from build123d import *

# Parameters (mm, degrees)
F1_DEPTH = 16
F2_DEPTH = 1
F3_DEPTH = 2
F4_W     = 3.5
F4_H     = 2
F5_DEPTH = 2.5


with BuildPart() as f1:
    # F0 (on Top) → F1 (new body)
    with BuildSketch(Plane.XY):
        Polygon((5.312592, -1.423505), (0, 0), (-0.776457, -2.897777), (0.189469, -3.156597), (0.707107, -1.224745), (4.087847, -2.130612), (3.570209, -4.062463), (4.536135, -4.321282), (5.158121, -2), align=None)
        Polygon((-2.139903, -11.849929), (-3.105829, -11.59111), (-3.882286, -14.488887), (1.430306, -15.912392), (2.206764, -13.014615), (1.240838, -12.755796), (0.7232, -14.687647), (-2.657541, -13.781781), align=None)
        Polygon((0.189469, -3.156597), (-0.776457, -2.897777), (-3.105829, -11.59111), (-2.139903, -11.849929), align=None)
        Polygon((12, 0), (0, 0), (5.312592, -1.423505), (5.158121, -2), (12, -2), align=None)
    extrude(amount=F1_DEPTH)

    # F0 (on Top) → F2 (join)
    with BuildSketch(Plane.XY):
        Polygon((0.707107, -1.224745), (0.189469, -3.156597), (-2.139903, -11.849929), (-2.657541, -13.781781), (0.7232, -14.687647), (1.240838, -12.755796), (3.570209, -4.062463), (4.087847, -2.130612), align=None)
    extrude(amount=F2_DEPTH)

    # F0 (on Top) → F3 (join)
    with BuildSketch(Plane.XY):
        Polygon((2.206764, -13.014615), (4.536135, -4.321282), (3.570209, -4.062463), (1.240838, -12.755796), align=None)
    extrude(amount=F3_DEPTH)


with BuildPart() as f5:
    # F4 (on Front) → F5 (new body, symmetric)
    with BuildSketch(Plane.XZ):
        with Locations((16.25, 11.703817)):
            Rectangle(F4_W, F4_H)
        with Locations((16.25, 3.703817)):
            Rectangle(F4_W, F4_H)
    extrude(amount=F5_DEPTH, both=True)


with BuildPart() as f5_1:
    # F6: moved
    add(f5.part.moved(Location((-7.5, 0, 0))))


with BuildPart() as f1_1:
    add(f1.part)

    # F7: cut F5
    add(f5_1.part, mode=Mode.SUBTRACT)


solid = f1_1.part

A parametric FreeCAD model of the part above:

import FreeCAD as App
import Part
import Sketcher
Q = App.Units.Quantity

doc = App.newDocument("Part")
body = doc.addObject("PartDesign::Body", "Body")

# Sketch on XY plane
sketch1 = body.newObject("Sketcher::SketchObject", "Sketch")
sketch1.AttachmentSupport = (doc.getObject("XY_Plane"), [""])
sketch1.MapMode = "FlatFace"
sketch1.addGeometry([
    Part.LineSegment(App.Vector(0, 0, 0), App.Vector(-0.8, -2.9, 0)),  # 0
    Part.LineSegment(App.Vector(-0.8, -2.9, 0), App.Vector(-3.1, -11.6, 0)),  # 1
    Part.LineSegment(App.Vector(-3.1, -11.6, 0), App.Vector(-3.9, -14.5, 0)),  # 2
    Part.LineSegment(App.Vector(-3.9, -14.5, 0), App.Vector(1.4, -15.9, 0)),  # 3
    Part.LineSegment(App.Vector(1.4, -15.9, 0), App.Vector(2.2, -13, 0)),  # 4
    Part.LineSegment(App.Vector(2.2, -13, 0), App.Vector(1.2, -12.8, 0)),  # 5
    Part.LineSegment(App.Vector(1.2, -12.8, 0), App.Vector(0.7, -14.7, 0)),  # 6
    Part.LineSegment(App.Vector(0.7, -14.7, 0), App.Vector(-2.7, -13.8, 0)),  # 7
    Part.LineSegment(App.Vector(-2.7, -13.8, 0), App.Vector(-2.1, -11.8, 0)),  # 8
    Part.LineSegment(App.Vector(-2.1, -11.8, 0), App.Vector(0.2, -3.2, 0)),  # 9
    Part.LineSegment(App.Vector(0.2, -3.2, 0), App.Vector(0.7, -1.2, 0)),  # 10
    Part.LineSegment(App.Vector(0.7, -1.2, 0), App.Vector(4.1, -2.1, 0)),  # 11
    Part.LineSegment(App.Vector(4.1, -2.1, 0), App.Vector(3.6, -4.1, 0)),  # 12
    Part.LineSegment(App.Vector(3.6, -4.1, 0), App.Vector(4.5, -4.3, 0)),  # 13
    Part.LineSegment(App.Vector(4.5, -4.3, 0), App.Vector(5.2, -2, 0)),  # 14
    Part.LineSegment(App.Vector(5.2, -2, 0), App.Vector(12, -2, 0)),  # 15
    Part.LineSegment(App.Vector(12, -2, 0), App.Vector(12, 0, 0)),  # 16
    Part.LineSegment(App.Vector(12, 0, 0), App.Vector(0, 0, 0)),  # 17
], False)
sketch1.addConstraint([
    Sketcher.Constraint("Coincident", 0, 2, 1, 1),
    Sketcher.Constraint("Coincident", 1, 2, 2, 1),
    Sketcher.Constraint("Coincident", 2, 2, 3, 1),
    Sketcher.Constraint("Coincident", 3, 2, 4, 1),
    Sketcher.Constraint("Coincident", 4, 2, 5, 1),
    Sketcher.Constraint("Coincident", 5, 2, 6, 1),
    Sketcher.Constraint("Coincident", 6, 2, 7, 1),
    Sketcher.Constraint("Coincident", 7, 2, 8, 1),
    Sketcher.Constraint("Coincident", 8, 2, 9, 1),
    Sketcher.Constraint("Coincident", 9, 2, 10, 1),
    Sketcher.Constraint("Coincident", 10, 2, 11, 1),
    Sketcher.Constraint("Coincident", 11, 2, 12, 1),
    Sketcher.Constraint("Coincident", 12, 2, 13, 1),
    Sketcher.Constraint("Coincident", 13, 2, 14, 1),
    Sketcher.Constraint("Coincident", 14, 2, 15, 1),
    Sketcher.Constraint("Coincident", 15, 2, 16, 1),
    Sketcher.Constraint("Coincident", 16, 2, 17, 1),
    Sketcher.Constraint("Coincident", 17, 2, 0, 1),
    Sketcher.Constraint("Horizontal", 15),
    Sketcher.Constraint("Vertical", 16),
    Sketcher.Constraint("Horizontal", 17),
    Sketcher.Constraint("Coincident", 17, 2, -1, 1),
    Sketcher.Constraint("Parallel", 0, 1),
    Sketcher.Constraint("Parallel", 1, 2),
    Sketcher.Constraint("Perpendicular", 2, 3),
    Sketcher.Constraint("Perpendicular", 3, 4),
    Sketcher.Constraint("Perpendicular", 4, 5),
    Sketcher.Constraint("Perpendicular", 5, 6),
    Sketcher.Constraint("Perpendicular", 6, 7),
    Sketcher.Constraint("Perpendicular", 7, 8),
    Sketcher.Constraint("Parallel", 8, 9),
    Sketcher.Constraint("Parallel", 9, 10),
    Sketcher.Constraint("Perpendicular", 10, 11),
    Sketcher.Constraint("Perpendicular", 11, 12),
    Sketcher.Constraint("Perpendicular", 12, 13),
    Sketcher.Constraint("Perpendicular", 13, 14),
    Sketcher.Constraint("Equal", 0, 2),
    Sketcher.Constraint("Equal", 2, 4),
    Sketcher.Constraint("Equal", 6, 8),
    Sketcher.Constraint("Equal", 1, 9),
    Sketcher.Constraint("Equal", 8, 10),
    Sketcher.Constraint("Equal", 7, 11),
    Sketcher.Constraint("Equal", 10, 12),
    Sketcher.Constraint("Equal", 5, 13),
    Sketcher.Constraint("DistanceX", 17, 2, 17, 1, Q("12 mm")),
    Sketcher.Constraint("DistanceY", 16, 1, 16, 2, Q("2 mm")),
    Sketcher.Constraint("Angle", 0, Q("-105 deg")),
    Sketcher.Constraint("Distance", 0, Q("3 mm")),
    Sketcher.Constraint("Distance", 1, Q("9.000001 mm")),
    Sketcher.Constraint("Distance", 5, Q("1 mm")),
    Sketcher.Constraint("Distance", 6, Q("1.999999 mm")),
    Sketcher.Constraint("Distance", 3, Q("5.5 mm")),
    Sketcher.Constraint("Distance", 7, Q("3.5 mm")),
])
pad1 = body.newObject("PartDesign::Pad", "Pad")
pad1.Profile = sketch1
pad1.Length = 16

# Sketch on XY plane
sketch2 = body.newObject("Sketcher::SketchObject", "Sketch001")
sketch2.AttachmentSupport = (doc.getObject("XY_Plane"), [""])
sketch2.MapMode = "FlatFace"
sketch2.addGeometry([
    Part.LineSegment(App.Vector(0.7, -1.2, 0), App.Vector(0.2, -3.2, 0)),  # 0
    Part.LineSegment(App.Vector(0.2, -3.2, 0), App.Vector(-2.1, -11.8, 0)),  # 1
    Part.LineSegment(App.Vector(-2.1, -11.8, 0), App.Vector(-2.7, -13.8, 0)),  # 2
    Part.LineSegment(App.Vector(-2.7, -13.8, 0), App.Vector(0.7, -14.7, 0)),  # 3
    Part.LineSegment(App.Vector(0.7, -14.7, 0), App.Vector(1.2, -12.8, 0)),  # 4
    Part.LineSegment(App.Vector(1.2, -12.8, 0), App.Vector(3.6, -4.1, 0)),  # 5
    Part.LineSegment(App.Vector(3.6, -4.1, 0), App.Vector(4.1, -2.1, 0)),  # 6
    Part.LineSegment(App.Vector(4.1, -2.1, 0), App.Vector(0.7, -1.2, 0)),  # 7
], False)
sketch2.addConstraint([
    Sketcher.Constraint("Coincident", 0, 2, 1, 1),
    Sketcher.Constraint("Coincident", 1, 2, 2, 1),
    Sketcher.Constraint("Coincident", 2, 2, 3, 1),
    Sketcher.Constraint("Coincident", 3, 2, 4, 1),
    Sketcher.Constraint("Coincident", 4, 2, 5, 1),
    Sketcher.Constraint("Coincident", 5, 2, 6, 1),
    Sketcher.Constraint("Coincident", 6, 2, 7, 1),
    Sketcher.Constraint("Coincident", 7, 2, 0, 1),
    Sketcher.Constraint("Parallel", 0, 1),
    Sketcher.Constraint("Parallel", 1, 2),
    Sketcher.Constraint("Perpendicular", 2, 3),
    Sketcher.Constraint("Perpendicular", 3, 4),
    Sketcher.Constraint("Parallel", 4, 5),
    Sketcher.Constraint("Parallel", 5, 6),
    Sketcher.Constraint("Perpendicular", 6, 7),
    Sketcher.Constraint("Equal", 0, 2),
    Sketcher.Constraint("Equal", 2, 4),
    Sketcher.Constraint("Equal", 1, 5),
    Sketcher.Constraint("Angle", 0, Q("-104.999995 deg")),
    Sketcher.Constraint("Distance", 0, Q("2 mm")),
    Sketcher.Constraint("Distance", 1, Q("9 mm")),
    Sketcher.Constraint("Distance", 3, Q("3.5 mm")),
    Sketcher.Constraint("DistanceX", -1, 1, 3, 2, Q("0.7232 mm")),
    Sketcher.Constraint("DistanceY", 1, 2, -1, 1, Q("11.849929 mm")),
])
pad2 = body.newObject("PartDesign::Pad", "Pad001")
pad2.Profile = sketch2
pad2.Length = 1

# Sketch on XY plane
sketch3 = body.newObject("Sketcher::SketchObject", "Sketch002")
sketch3.AttachmentSupport = (doc.getObject("XY_Plane"), [""])
sketch3.MapMode = "FlatFace"
sketch3.addGeometry([
    Part.LineSegment(App.Vector(2.2, -13, 0), App.Vector(4.5, -4.3, 0)),
    Part.LineSegment(App.Vector(4.5, -4.3, 0), App.Vector(3.6, -4.1, 0)),
    Part.LineSegment(App.Vector(3.6, -4.1, 0), App.Vector(1.2, -12.8, 0)),
    Part.LineSegment(App.Vector(1.2, -12.8, 0), App.Vector(2.2, -13, 0)),
], False)
sketch3.addConstraint([
    Sketcher.Constraint("Coincident", 0, 2, 1, 1),
    Sketcher.Constraint("Coincident", 1, 2, 2, 1),
    Sketcher.Constraint("Coincident", 2, 2, 3, 1),
    Sketcher.Constraint("Coincident", 3, 2, 0, 1),
    Sketcher.Constraint("Perpendicular", 0, 1),
    Sketcher.Constraint("Perpendicular", 1, 2),
    Sketcher.Constraint("Perpendicular", 2, 3),
    Sketcher.Constraint("Angle", 0, Q("75.000003 deg")),
    Sketcher.Constraint("Distance", 0, Q("9 mm")),
    Sketcher.Constraint("Distance", 1, Q("1 mm")),
    Sketcher.Constraint("DistanceX", -1, 1, 1, 2, Q("3.570209 mm")),
    Sketcher.Constraint("DistanceY", 0, 2, -1, 1, Q("4.321282 mm")),
])
pad3 = body.newObject("PartDesign::Pad", "Pad002")
pad3.Profile = sketch3
pad3.Length = 2
body2 = doc.addObject("PartDesign::Body", "Body001")
body2.AllowCompound = True

# Sketch on XZ plane
sketch4 = body2.newObject("Sketcher::SketchObject", "Sketch003")
sketch4.AttachmentSupport = (doc.getObject("XZ_Plane001"), [""])
sketch4.MapMode = "FlatFace"
sketch4.addGeometry([
    Part.LineSegment(App.Vector(14.5, 12.7, 0), App.Vector(14.5, 10.7, 0)),  # 0
    Part.LineSegment(App.Vector(14.5, 10.7, 0), App.Vector(18, 10.7, 0)),  # 1
    Part.LineSegment(App.Vector(18, 10.7, 0), App.Vector(18, 12.7, 0)),  # 2
    Part.LineSegment(App.Vector(18, 12.7, 0), App.Vector(14.5, 12.7, 0)),  # 3
    Part.LineSegment(App.Vector(14.5, 4.7, 0), App.Vector(14.5, 2.7, 0)),  # 4
    Part.LineSegment(App.Vector(14.5, 2.7, 0), App.Vector(18, 2.7, 0)),  # 5
    Part.LineSegment(App.Vector(18, 2.7, 0), App.Vector(18, 4.7, 0)),  # 6
    Part.LineSegment(App.Vector(18, 4.7, 0), App.Vector(14.5, 4.7, 0)),  # 7
], False)
sketch4.addConstraint([
    Sketcher.Constraint("Coincident", 0, 2, 1, 1),
    Sketcher.Constraint("Coincident", 1, 2, 2, 1),
    Sketcher.Constraint("Coincident", 2, 2, 3, 1),
    Sketcher.Constraint("Coincident", 3, 2, 0, 1),
    Sketcher.Constraint("Coincident", 4, 2, 5, 1),
    Sketcher.Constraint("Coincident", 5, 2, 6, 1),
    Sketcher.Constraint("Coincident", 6, 2, 7, 1),
    Sketcher.Constraint("Coincident", 7, 2, 4, 1),
    Sketcher.Constraint("Vertical", 0),
    Sketcher.Constraint("Horizontal", 1),
    Sketcher.Constraint("Vertical", 2),
    Sketcher.Constraint("Horizontal", 3),
    Sketcher.Constraint("Vertical", 4),
    Sketcher.Constraint("Horizontal", 5),
    Sketcher.Constraint("Vertical", 6),
    Sketcher.Constraint("Horizontal", 7),
    Sketcher.Constraint("Vertical", 3, 2, 4, 2),
    Sketcher.Constraint("Vertical", 2, 2, 5, 2),
    Sketcher.Constraint("Equal", 2, 4),
    Sketcher.Constraint("DistanceY", 0, 2, 0, 1, Q("2 mm")),
    Sketcher.Constraint("DistanceX", 1, 1, 1, 2, Q("3.5 mm")),
    Sketcher.Constraint("DistanceX", -1, 1, 1, 2, Q("18 mm")),
    Sketcher.Constraint("DistanceY", 4, 2, 0, 2, Q("8 mm")),
    Sketcher.Constraint("DistanceY", -1, 1, 0, 2, Q("10.703817 mm")),
])
pad4 = body2.newObject("PartDesign::Pad", "Pad003")
pad4.Profile = sketch4
pad4.Length = 5
pad4.Midplane = True
body3 = doc.addObject("PartDesign::Body", "Body002")
body3.AllowCompound = True
doc.recompute()

body2.Placement = App.Placement(App.Vector(-7.5, 0, 0), App.Rotation(App.Vector(0, 0, 1), 0))
boolean = body3.newObject("PartDesign::Boolean", "Boolean")
boolean.Type = "Fuse"
boolean.addObjects([body2])
doc.recompute()

boolean2 = body.newObject("PartDesign::Boolean", "Boolean001")
boolean2.Type = "Cut"
boolean2.addObjects([body3])

doc.recompute()
